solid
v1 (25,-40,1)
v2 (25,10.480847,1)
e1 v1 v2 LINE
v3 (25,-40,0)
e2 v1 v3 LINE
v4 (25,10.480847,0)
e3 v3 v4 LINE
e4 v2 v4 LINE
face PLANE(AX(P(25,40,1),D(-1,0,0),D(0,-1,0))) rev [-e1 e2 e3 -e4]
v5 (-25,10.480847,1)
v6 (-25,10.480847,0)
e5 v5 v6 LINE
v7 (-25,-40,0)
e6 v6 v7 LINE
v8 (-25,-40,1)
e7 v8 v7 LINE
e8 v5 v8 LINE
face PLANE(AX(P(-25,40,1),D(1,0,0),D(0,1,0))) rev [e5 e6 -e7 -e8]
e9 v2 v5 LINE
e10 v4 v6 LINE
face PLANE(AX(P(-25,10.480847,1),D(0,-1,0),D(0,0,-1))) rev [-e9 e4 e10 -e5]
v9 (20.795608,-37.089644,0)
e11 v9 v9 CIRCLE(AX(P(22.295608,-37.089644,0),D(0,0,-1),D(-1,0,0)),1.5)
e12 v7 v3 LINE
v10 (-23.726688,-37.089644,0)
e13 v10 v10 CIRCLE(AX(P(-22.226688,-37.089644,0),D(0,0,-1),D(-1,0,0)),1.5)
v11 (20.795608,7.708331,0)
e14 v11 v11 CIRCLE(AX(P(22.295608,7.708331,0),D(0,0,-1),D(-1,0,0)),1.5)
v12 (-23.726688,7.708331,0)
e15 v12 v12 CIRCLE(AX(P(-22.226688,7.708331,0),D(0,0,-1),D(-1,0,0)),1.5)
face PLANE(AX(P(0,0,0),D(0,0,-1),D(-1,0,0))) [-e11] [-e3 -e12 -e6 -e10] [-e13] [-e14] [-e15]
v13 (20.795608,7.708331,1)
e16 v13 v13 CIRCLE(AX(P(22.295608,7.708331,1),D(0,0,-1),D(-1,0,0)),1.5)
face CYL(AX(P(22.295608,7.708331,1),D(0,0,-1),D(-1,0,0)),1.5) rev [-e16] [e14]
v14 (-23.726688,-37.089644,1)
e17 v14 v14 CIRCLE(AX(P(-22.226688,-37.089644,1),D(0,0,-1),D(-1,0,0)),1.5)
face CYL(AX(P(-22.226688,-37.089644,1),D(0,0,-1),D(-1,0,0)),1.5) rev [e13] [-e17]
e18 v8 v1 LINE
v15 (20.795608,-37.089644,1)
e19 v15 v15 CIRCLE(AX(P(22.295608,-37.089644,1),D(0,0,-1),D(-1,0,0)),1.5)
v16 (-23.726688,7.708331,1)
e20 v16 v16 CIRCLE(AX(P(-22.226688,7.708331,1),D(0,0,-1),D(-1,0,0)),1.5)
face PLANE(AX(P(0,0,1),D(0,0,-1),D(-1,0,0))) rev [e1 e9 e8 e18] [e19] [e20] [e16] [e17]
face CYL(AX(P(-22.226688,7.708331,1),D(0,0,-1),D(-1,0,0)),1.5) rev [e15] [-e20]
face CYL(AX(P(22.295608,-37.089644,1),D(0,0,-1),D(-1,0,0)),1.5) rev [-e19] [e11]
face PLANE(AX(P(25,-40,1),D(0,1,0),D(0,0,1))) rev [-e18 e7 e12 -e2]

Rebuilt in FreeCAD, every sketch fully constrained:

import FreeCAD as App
import Part
import Sketcher

V = App.Vector
Q = App.Units.Quantity


def add_polygon(sketch, points):
    """Adds a closed chain of lines whose ends are joined by coincident constraints."""
    first, n = sketch.GeometryCount, len(points)
    for a, b in zip(points, points[1:] + points[:1]):
        sketch.addGeometry(Part.LineSegment(App.Vector(*a, 0), App.Vector(*b, 0)), False)
    for i in range(n):
        sketch.addConstraint(Sketcher.Constraint("Coincident", first + i, 2, first + (i + 1) % n, 1))

doc = App.newDocument("Part")
params = doc.addObject("Spreadsheet::Sheet", "Params")
for row, (alias, value) in enumerate([
    ("sketch1_width", "50 mm"),
    ("sketch1_height", "80 mm"),
    ("pad1_length", "1 mm"),
    ("sketch2_width", "50 mm"),
    ("pocket1_length", "1 mm"),
    ("sketch3_diameter", "3 mm"),
    ("pocket2_length", "1 mm"),
], start=1):
    params.set(f"A{row}", alias)
    params.set(f"B{row}", "=" + value)
    params.setAlias(f"B{row}", alias)

body = doc.addObject("PartDesign::Body", "Body")

sketch1 = body.newObject("Sketcher::SketchObject", "Sketch")
sketch1.AttachmentSupport = (doc.getObject("XY_Plane"), [""])
sketch1.MapMode = "FlatFace"
add_polygon(sketch1, [(-25, 40), (-25, -40), (25, -40), (25, 40)])
sketch1.addConstraint([
    Sketcher.Constraint("Vertical", 0),
    Sketcher.Constraint("Horizontal", 1),
    Sketcher.Constraint("Vertical", 2),
    Sketcher.Constraint("Horizontal", 3),
    Sketcher.Constraint("Symmetric", 0, 2, 2, 2, -1, 1),
    Sketcher.Constraint("DistanceX", 1, 1, 1, 2, Q("50 mm")),
    Sketcher.Constraint("DistanceY", 0, 2, 0, 1, Q("80 mm")),
])
sketch1.setExpression("Constraints[9]", "Params.sketch1_width")
sketch1.setExpression("Constraints[10]", "Params.sketch1_height")
pad1 = body.newObject("PartDesign::Pad", "Pad")
pad1.Profile = sketch1
pad1.setExpression("Length", "Params.pad1_length")

sketch2 = body.newObject("Sketcher::SketchObject", "Sketch001")
sketch2.AttachmentSupport = (doc.getObject("XY_Plane"), [""])
sketch2.MapMode = "FlatFace"
add_polygon(sketch2, [(25, 40), (25, 10.480847), (-25, 10.480847), (-25, 40)])
sketch2.addConstraint([
    Sketcher.Constraint("Vertical", 0),
    Sketcher.Constraint("Horizontal", 1),
    Sketcher.Constraint("Vertical", 2),
    Sketcher.Constraint("Horizontal", 3),
    Sketcher.Constraint("DistanceX", 1, 2, 1, 1, Q("50 mm")),
    Sketcher.Constraint("DistanceX", -1, 1, 0, 2, Q("25 mm")),
    Sketcher.Constraint("DistanceY", -1, 1, 2, 2, Q("40 mm")),
    Sketcher.Constraint("DistanceY", 0, 2, 0, 1, Q("29.519153 mm")),
])
sketch2.setExpression("Constraints[8]", "Params.sketch2_width")
pocket1 = body.newObject("PartDesign::Pocket", "Pocket")
pocket1.Profile = sketch2
pocket1.setExpression("Length", "Params.pocket1_length")
pocket1.Reversed = True

sketch3 = body.newObject("Sketcher::SketchObject", "Sketch002")
sketch3.AttachmentSupport = (doc.getObject("XY_Plane"), [""])
sketch3.MapMode = "FlatFace"
sketch3.addGeometry([
    Part.Circle(V(22.295608, 7.708331, 0), V(0, 0, 1), 1.5),
    Part.Circle(V(22.295608, -37.089644, 0), V(0, 0, 1), 1.5),
    Part.Circle(V(-22.226688, 7.708331, 0), V(0, 0, 1), 1.5),
    Part.Circle(V(-22.226688, -37.089644, 0), V(0, 0, 1), 1.5),
], False)
sketch3.addConstraint([
    Sketcher.Constraint("Equal", 0, 1),
    Sketcher.Constraint("Equal", 1, 2),
    Sketcher.Constraint("Equal", 2, 3),
    Sketcher.Constraint("Horizontal", 0, 3, 2, 3),
    Sketcher.Constraint("Horizontal", 1, 3, 3, 3),
    Sketcher.Constraint("Vertical", 0, 3, 1, 3),
    Sketcher.Constraint("Vertical", 2, 3, 3, 3),
    Sketcher.Constraint("Diameter", 0, Q("3 mm")),
    Sketcher.Constraint("DistanceY", -1, 1, 0, 3, Q("7.708331 mm")),
    Sketcher.Constraint("DistanceX", -1, 1, 0, 3, Q("22.295608 mm")),
    Sketcher.Constraint("DistanceY", 1, 3, -1, 1, Q("37.089644 mm")),
    Sketcher.Constraint("DistanceX", 2, 3, -1, 1, Q("22.226688 mm")),
])
sketch3.setExpression("Constraints[7]", "Params.sketch3_diameter")
pocket2 = body.newObject("PartDesign::Pocket", "Pocket001")
pocket2.Profile = sketch3
pocket2.setExpression("Length", "Params.pocket2_length")
pocket2.Reversed = True

doc.recompute()
